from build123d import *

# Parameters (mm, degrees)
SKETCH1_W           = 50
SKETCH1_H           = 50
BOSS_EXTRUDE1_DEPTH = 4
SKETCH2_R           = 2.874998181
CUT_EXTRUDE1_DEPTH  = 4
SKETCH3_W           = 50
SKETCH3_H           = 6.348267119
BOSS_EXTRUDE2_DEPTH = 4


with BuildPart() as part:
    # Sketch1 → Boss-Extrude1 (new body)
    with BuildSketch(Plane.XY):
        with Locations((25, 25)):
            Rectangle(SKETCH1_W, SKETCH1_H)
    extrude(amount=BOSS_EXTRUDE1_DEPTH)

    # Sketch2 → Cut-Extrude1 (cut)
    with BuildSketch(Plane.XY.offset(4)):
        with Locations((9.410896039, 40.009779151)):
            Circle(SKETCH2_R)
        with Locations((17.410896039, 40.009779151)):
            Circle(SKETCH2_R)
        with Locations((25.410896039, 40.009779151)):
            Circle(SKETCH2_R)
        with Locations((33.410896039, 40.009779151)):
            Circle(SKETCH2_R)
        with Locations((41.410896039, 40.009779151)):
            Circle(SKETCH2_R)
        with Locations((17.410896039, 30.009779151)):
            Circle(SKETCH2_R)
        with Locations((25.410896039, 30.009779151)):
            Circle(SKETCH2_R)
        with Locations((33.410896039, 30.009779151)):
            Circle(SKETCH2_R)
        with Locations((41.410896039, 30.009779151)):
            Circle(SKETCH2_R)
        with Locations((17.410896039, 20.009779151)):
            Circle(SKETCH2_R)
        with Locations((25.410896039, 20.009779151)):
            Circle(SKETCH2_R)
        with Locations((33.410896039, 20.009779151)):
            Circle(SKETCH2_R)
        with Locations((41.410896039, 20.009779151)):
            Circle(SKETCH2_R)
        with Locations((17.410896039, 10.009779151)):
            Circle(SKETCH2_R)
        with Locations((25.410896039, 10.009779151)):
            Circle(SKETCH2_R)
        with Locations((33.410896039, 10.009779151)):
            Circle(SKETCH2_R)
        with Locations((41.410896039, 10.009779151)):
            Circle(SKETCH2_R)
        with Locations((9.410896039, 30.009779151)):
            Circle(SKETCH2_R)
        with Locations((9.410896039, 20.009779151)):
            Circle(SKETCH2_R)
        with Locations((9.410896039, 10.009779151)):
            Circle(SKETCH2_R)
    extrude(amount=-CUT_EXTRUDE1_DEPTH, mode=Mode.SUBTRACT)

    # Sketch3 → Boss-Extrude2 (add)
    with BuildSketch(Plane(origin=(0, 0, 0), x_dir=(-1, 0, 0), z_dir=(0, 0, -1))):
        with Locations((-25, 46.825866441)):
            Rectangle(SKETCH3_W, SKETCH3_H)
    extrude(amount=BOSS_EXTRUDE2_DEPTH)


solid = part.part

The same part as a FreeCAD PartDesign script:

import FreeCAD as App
import Part
import Sketcher

V = App.Vector

doc = App.newDocument("Part")
body = doc.addObject("PartDesign::Body", "Body")

# Sketch on XY plane
sketch1 = body.newObject("Sketcher::SketchObject", "Sketch")
sketch1.AttachmentSupport = (doc.getObject("XY_Plane"), [""])
sketch1.MapMode = "FlatFace"
sketch1.addGeometry(Part.LineSegment(V(0, 50, 0), V(0, 0, 0)), False)
sketch1.addGeometry(Part.LineSegment(V(0, 0, 0), V(50, 0, 0)), False)
sketch1.addGeometry(Part.LineSegment(V(50, 0, 0), V(50, 50, 0)), False)
sketch1.addGeometry(Part.LineSegment(V(50, 50, 0), V(0, 50, 0)), False)
sketch1.addConstraint(Sketcher.Constraint("Coincident", 0, 2, 1, 1))
sketch1.addConstraint(Sketcher.Constraint("Coincident", 1, 2, 2, 1))
sketch1.addConstraint(Sketcher.Constraint("Coincident", 2, 2, 3, 1))
sketch1.addConstraint(Sketcher.Constraint("Coincident", 3, 2, 0, 1))
sketch1.addConstraint(Sketcher.Constraint("Vertical", 0))
sketch1.addConstraint(Sketcher.Constraint("Horizontal", 1))
sketch1.addConstraint(Sketcher.Constraint("Vertical", 2))
sketch1.addConstraint(Sketcher.Constraint("Horizontal", 3))
sketch1.addConstraint(Sketcher.Constraint("Coincident", 0, 2, -1, 1))
sketch1.addConstraint(Sketcher.Constraint("Equal", 3, 0))
sketch1.addConstraint(Sketcher.Constraint("DistanceX", 1, 1, 1, 2, 50.0))
pad1 = body.newObject("PartDesign::Pad", "Pad")
pad1.Profile = sketch1
pad1.Length = 4

# Sketch on XY plane
sketch2 = body.newObject("Sketcher::SketchObject", "Sketch001")
sketch2.AttachmentSupport = (doc.getObject("XY_Plane"), [""])
sketch2.MapMode = "FlatFace"
sketch2.AttachmentOffset = App.Placement(V(0, 0, 4), App.Rotation())
sketch2.addGeometry(Part.Circle(V(9.4, 40, 0), V(0, 0, 1), 2.9), False)
sketch2.addGeometry(Part.Circle(V(17.4, 40, 0), V(0, 0, 1), 2.9), False)
sketch2.addGeometry(Part.Circle(V(25.4, 40, 0), V(0, 0, 1), 2.9), False)
sketch2.addGeometry(Part.Circle(V(33.4, 40, 0), V(0, 0, 1), 2.9), False)
sketch2.addGeometry(Part.Circle(V(41.4, 40, 0), V(0, 0, 1), 2.9), False)
sketch2.addGeometry(Part.Circle(V(17.4, 30, 0), V(0, 0, 1), 2.9), False)
sketch2.addGeometry(Part.Circle(V(25.4, 30, 0), V(0, 0, 1), 2.9), False)
sketch2.addGeometry(Part.Circle(V(33.4, 30, 0), V(0, 0, 1), 2.9), False)
sketch2.addGeometry(Part.Circle(V(41.4, 30, 0), V(0, 0, 1), 2.9), False)
sketch2.addGeometry(Part.Circle(V(17.4, 20, 0), V(0, 0, 1), 2.9), False)
sketch2.addGeometry(Part.Circle(V(25.4, 20, 0), V(0, 0, 1), 2.9), False)
sketch2.addGeometry(Part.Circle(V(33.4, 20, 0), V(0, 0, 1), 2.9), False)
sketch2.addGeometry(Part.Circle(V(41.4, 20, 0), V(0, 0, 1), 2.9), False)
sketch2.addGeometry(Part.Circle(V(17.4, 10, 0), V(0, 0, 1), 2.9), False)
sketch2.addGeometry(Part.Circle(V(25.4, 10, 0), V(0, 0, 1), 2.9), False)
sketch2.addGeometry(Part.Circle(V(33.4, 10, 0), V(0, 0, 1), 2.9), False)
sketch2.addGeometry(Part.Circle(V(41.4, 10, 0), V(0, 0, 1), 2.9), False)
sketch2.addGeometry(Part.Circle(V(9.4, 30, 0), V(0, 0, 1), 2.9), False)
sketch2.addGeometry(Part.Circle(V(9.4, 20, 0), V(0, 0, 1), 2.9), False)
sketch2.addGeometry(Part.Circle(V(9.4, 10, 0), V(0, 0, 1), 2.9), False)
sketch2.addConstraint(Sketcher.Constraint("Equal", 0, 1))
sketch2.addConstraint(Sketcher.Constraint("Equal", 1, 2))
sketch2.addConstraint(Sketcher.Constraint("Equal", 2, 3))
sketch2.addConstraint(Sketcher.Constraint("Equal", 3, 4))
sketch2.addConstraint(Sketcher.Constraint("Equal", 4, 5))
sketch2.addConstraint(Sketcher.Constraint("Equal", 5, 6))
sketch2.addConstraint(Sketcher.Constraint("Equal", 6, 7))
sketch2.addConstraint(Sketcher.Constraint("Equal", 7, 8))
sketch2.addConstraint(Sketcher.Constraint("Equal", 8, 9))
sketch2.addConstraint(Sketcher.Constraint("Equal", 9, 10))
sketch2.addConstraint(Sketcher.Constraint("Equal", 10, 11))
sketch2.addConstraint(Sketcher.Constraint("Equal", 11, 12))
sketch2.addConstraint(Sketcher.Constraint("Equal", 12, 13))
sketch2.addConstraint(Sketcher.Constraint("Equal", 13, 14))
sketch2.addConstraint(Sketcher.Constraint("Equal", 14, 15))
sketch2.addConstraint(Sketcher.Constraint("Equal", 15, 16))
sketch2.addConstraint(Sketcher.Constraint("Equal", 16, 17))
sketch2.addConstraint(Sketcher.Constraint("Equal", 17, 18))
sketch2.addConstraint(Sketcher.Constraint("Equal", 18, 19))
sketch2.addConstraint(Sketcher.Constraint("Horizontal", 0, 3, 1, 3))
sketch2.addConstraint(Sketcher.Constraint("Horizontal", 1, 3, 2, 3))
sketch2.addConstraint(Sketcher.Constraint("Horizontal", 2, 3, 3, 3))
sketch2.addConstraint(Sketcher.Constraint("Horizontal", 3, 3, 4, 3))
sketch2.addConstraint(Sketcher.Constraint("Horizontal", 5, 3, 6, 3))
sketch2.addConstraint(Sketcher.Constraint("Horizontal", 6, 3, 7, 3))
sketch2.addConstraint(Sketcher.Constraint("Horizontal", 7, 3, 8, 3))
sketch2.addConstraint(Sketcher.Constraint("Horizontal", 9, 3, 10, 3))
sketch2.addConstraint(Sketcher.Constraint("Horizontal", 10, 3, 11, 3))
sketch2.addConstraint(Sketcher.Constraint("Horizontal", 11, 3, 12, 3))
sketch2.addConstraint(Sketcher.Constraint("Horizontal", 13, 3, 14, 3))
sketch2.addConstraint(Sketcher.Constraint("Horizontal", 14, 3, 15, 3))
sketch2.addConstraint(Sketcher.Constraint("Horizontal", 15, 3, 16, 3))
sketch2.addConstraint(Sketcher.Constraint("Horizontal", 8, 3, 17, 3))
sketch2.addConstraint(Sketcher.Constraint("Horizontal", 12, 3, 18, 3))
sketch2.addConstraint(Sketcher.Constraint("Horizontal", 16, 3, 19, 3))
sketch2.addConstraint(Sketcher.Constraint("Vertical", 1, 3, 5, 3))
sketch2.addConstraint(Sketcher.Constraint("Vertical", 2, 3, 6, 3))
sketch2.addConstraint(Sketcher.Constraint("Vertical", 3, 3, 7, 3))
sketch2.addConstraint(Sketcher.Constraint("Vertical", 4, 3, 8, 3))
sketch2.addConstraint(Sketcher.Constraint("Vertical", 5, 3, 9, 3))
sketch2.addConstraint(Sketcher.Constraint("Vertical", 6, 3, 10, 3))
sketch2.addConstraint(Sketcher.Constraint("Vertical", 7, 3, 11, 3))
sketch2.addConstraint(Sketcher.Constraint("Vertical", 8, 3, 12, 3))
sketch2.addConstraint(Sketcher.Constraint("Vertical", 9, 3, 13, 3))
sketch2.addConstraint(Sketcher.Constraint("Vertical", 10, 3, 14, 3))
sketch2.addConstraint(Sketcher.Constraint("Vertical", 11, 3, 15, 3))
sketch2.addConstraint(Sketcher.Constraint("Vertical", 12, 3, 16, 3))
sketch2.addConstraint(Sketcher.Constraint("Vertical", 0, 3, 17, 3))
sketch2.addConstraint(Sketcher.Constraint("Vertical", 17, 3, 18, 3))
sketch2.addConstraint(Sketcher.Constraint("Vertical", 18, 3, 19, 3))
sketch2.addConstraint(Sketcher.Constraint("DistanceX", 0, 3, 1, 3, 8.0))
sketch2.addConstraint(Sketcher.Constraint("DistanceX", 1, 3, 2, 3, 8.0))
sketch2.addConstraint(Sketcher.Constraint("DistanceX", 2, 3, 3, 3, 8.0))
sketch2.addConstraint(Sketcher.Constraint("DistanceX", 3, 3, 4, 3, 8.0))
sketch2.addConstraint(Sketcher.Constraint("DistanceY", 5, 3, 1, 3, 10.0))
sketch2.addConstraint(Sketcher.Constraint("DistanceY", 9, 3, 5, 3, 10.0))
sketch2.addConstraint(Sketcher.Constraint("DistanceY", 13, 3, 9, 3, 10.0))
sketch2.addConstraint(Sketcher.Constraint("Diameter", 0, 5.749996))
sketch2.addConstraint(Sketcher.Constraint("DistanceY", -1, 1, 0, 3, 40.009779))
sketch2.addConstraint(Sketcher.Constraint("DistanceX", -1, 1, 0, 3, 9.410896))
pocket1 = body.newObject("PartDesign::Pocket", "Pocket")
pocket1.Profile = sketch2
pocket1.Length = 4

# Sketch on XY plane
sketch3 = body.newObject("Sketcher::SketchObject", "Sketch002")
sketch3.AttachmentSupport = (doc.getObject("XY_Plane"), [""])
sketch3.MapMode = "FlatFace"
sketch3.addGeometry(Part.LineSegment(V(50, 50, 0), V(50, 44, 0)), False)
sketch3.addGeometry(Part.LineSegment(V(50, 44, 0), V(0, 44, 0)), False)
sketch3.addGeometry(Part.LineSegment(V(0, 44, 0), V(0, 50, 0)), False)
sketch3.addGeometry(Part.LineSegment(V(0, 50, 0), V(50, 50, 0)), False)
sketch3.addConstraint(Sketcher.Constraint("Coincident", 0, 2, 1, 1))
sketch3.addConstraint(Sketcher.Constraint("Coincident", 1, 2, 2, 1))
sketch3.addConstraint(Sketcher.Constraint("Coincident", 2, 2, 3, 1))
sketch3.addConstraint(Sketcher.Constraint("Coincident", 3, 2, 0, 1))
sketch3.addConstraint(Sketcher.Constraint("Vertical", 0))
sketch3.addConstraint(Sketcher.Constraint("Horizontal", 1))
sketch3.addConstraint(Sketcher.Constraint("Vertical", 2))
sketch3.addConstraint(Sketcher.Constraint("Horizontal", 3))
sketch3.addConstraint(Sketcher.Constraint("PointOnObject", 1, 2, -2))
sketch3.addConstraint(Sketcher.Constraint("DistanceX", 1, 2, 1, 1, 50.0))
sketch3.addConstraint(Sketcher.Constraint("DistanceY", -1, 1, 2, 2, 50.0))
sketch3.addConstraint(Sketcher.Constraint("DistanceY", 0, 2, 0, 1, 6.348267))
pad2 = body.newObject("PartDesign::Pad", "Pad001")
pad2.Profile = sketch3
pad2.Length = 4
pad2.Reversed = True

doc.recompute()
